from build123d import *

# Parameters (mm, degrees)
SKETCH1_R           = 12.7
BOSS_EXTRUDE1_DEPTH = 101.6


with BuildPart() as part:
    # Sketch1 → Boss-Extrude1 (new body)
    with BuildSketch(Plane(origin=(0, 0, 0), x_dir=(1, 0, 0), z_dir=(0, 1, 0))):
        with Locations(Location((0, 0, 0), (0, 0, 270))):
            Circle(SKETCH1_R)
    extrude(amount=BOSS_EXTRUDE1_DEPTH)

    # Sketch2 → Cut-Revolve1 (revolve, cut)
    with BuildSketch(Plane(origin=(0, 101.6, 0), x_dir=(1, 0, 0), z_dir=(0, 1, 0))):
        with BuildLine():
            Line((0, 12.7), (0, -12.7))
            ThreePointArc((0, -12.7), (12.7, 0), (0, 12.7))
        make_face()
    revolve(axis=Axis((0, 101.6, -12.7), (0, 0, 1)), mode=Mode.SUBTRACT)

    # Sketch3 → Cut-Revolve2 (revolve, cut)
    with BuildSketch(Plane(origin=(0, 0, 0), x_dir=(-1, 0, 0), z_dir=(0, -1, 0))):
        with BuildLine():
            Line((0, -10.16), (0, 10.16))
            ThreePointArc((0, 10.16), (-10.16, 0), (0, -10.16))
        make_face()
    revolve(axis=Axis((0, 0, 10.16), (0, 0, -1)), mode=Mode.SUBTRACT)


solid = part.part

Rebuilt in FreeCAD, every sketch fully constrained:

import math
import FreeCAD as App
import Part
import Sketcher

V = App.Vector
Q = App.Units.Quantity

doc = App.newDocument("Part")
body = doc.addObject("PartDesign::Body", "Body")

# Sketch on XZ plane
sketch1 = body.newObject("Sketcher::SketchObject", "Sketch")
sketch1.AttachmentSupport = (doc.getObject("XZ_Plane"), [""])
sketch1.MapMode = "FlatFace"
sketch1.addGeometry(Part.Circle(V(0, 0, 0), V(0, 0, 1), 13), False)
sketch1.addConstraint(Sketcher.Constraint("Coincident", 0, 3, -1, 1))
sketch1.addConstraint(Sketcher.Constraint("Diameter", 0, Q("1 in")))
pad1 = body.newObject("PartDesign::Pad", "Pad")
pad1.Profile = sketch1
pad1.Length = Q("4 in")
pad1.Reversed = True

# Sketch on XZ plane
sketch2 = body.newObject("Sketcher::SketchObject", "Sketch001")
sketch2.AttachmentSupport = (doc.getObject("XZ_Plane"), [""])
sketch2.MapMode = "FlatFace"
sketch2.AttachmentOffset = App.Placement(V(0, 0, -4 * 25.4), App.Rotation())
sketch2.addGeometry(Part.LineSegment(V(0, -13, 0), V(0, 13, 0)), False)
sketch2.addGeometry(Part.ArcOfCircle(Part.Circle(V(0, 0, 0), V(0, 0, 1), 13), math.radians(-90), math.radians(90)), False)
sketch2.addConstraint(Sketcher.Constraint("Coincident", 0, 1, 1, 1))
sketch2.addConstraint(Sketcher.Constraint("Coincident", 1, 2, 0, 2))
sketch2.addConstraint(Sketcher.Constraint("Vertical", 0))
sketch2.addConstraint(Sketcher.Constraint("Coincident", 1, 3, -1, 1))
sketch2.addConstraint(Sketcher.Constraint("PointOnObject", 0, 1, -2))
sketch2.addConstraint(Sketcher.Constraint("Radius", 1, Q("0.5 in")))
groove = body.newObject("PartDesign::Groove", "Groove")
groove.Profile = sketch2
groove.ReferenceAxis = (sketch2, ["V_Axis"])
groove.Angle = 360

# Sketch on XZ plane
sketch3 = body.newObject("Sketcher::SketchObject", "Sketch002")
sketch3.AttachmentSupport = (doc.getObject("XZ_Plane"), [""])
sketch3.MapMode = "FlatFace"
sketch3.addGeometry(Part.LineSegment(V(0, 10, 0), V(0, -10, 0)), False)
sketch3.addGeometry(Part.ArcOfCircle(Part.Circle(V(0, 0, 0), V(0, 0, 1), 10), math.radians(-90), math.radians(90)), False)
sketch3.addConstraint(Sketcher.Constraint("Coincident", 0, 1, 1, 2))
sketch3.addConstraint(Sketcher.Constraint("Coincident", 1, 1, 0, 2))
sketch3.addConstraint(Sketcher.Constraint("Vertical", 0))
sketch3.addConstraint(Sketcher.Constraint("Coincident", 1, 3, -1, 1))
sketch3.addConstraint(Sketcher.Constraint("PointOnObject", 0, 1, -2))
sketch3.addConstraint(Sketcher.Constraint("Radius", 1, Q("0.4 in")))
groove2 = body.newObject("PartDesign::Groove", "Groove001")
groove2.Profile = sketch3
groove2.ReferenceAxis = (sketch3, ["V_Axis"])
groove2.Angle = 360

doc.recompute()
